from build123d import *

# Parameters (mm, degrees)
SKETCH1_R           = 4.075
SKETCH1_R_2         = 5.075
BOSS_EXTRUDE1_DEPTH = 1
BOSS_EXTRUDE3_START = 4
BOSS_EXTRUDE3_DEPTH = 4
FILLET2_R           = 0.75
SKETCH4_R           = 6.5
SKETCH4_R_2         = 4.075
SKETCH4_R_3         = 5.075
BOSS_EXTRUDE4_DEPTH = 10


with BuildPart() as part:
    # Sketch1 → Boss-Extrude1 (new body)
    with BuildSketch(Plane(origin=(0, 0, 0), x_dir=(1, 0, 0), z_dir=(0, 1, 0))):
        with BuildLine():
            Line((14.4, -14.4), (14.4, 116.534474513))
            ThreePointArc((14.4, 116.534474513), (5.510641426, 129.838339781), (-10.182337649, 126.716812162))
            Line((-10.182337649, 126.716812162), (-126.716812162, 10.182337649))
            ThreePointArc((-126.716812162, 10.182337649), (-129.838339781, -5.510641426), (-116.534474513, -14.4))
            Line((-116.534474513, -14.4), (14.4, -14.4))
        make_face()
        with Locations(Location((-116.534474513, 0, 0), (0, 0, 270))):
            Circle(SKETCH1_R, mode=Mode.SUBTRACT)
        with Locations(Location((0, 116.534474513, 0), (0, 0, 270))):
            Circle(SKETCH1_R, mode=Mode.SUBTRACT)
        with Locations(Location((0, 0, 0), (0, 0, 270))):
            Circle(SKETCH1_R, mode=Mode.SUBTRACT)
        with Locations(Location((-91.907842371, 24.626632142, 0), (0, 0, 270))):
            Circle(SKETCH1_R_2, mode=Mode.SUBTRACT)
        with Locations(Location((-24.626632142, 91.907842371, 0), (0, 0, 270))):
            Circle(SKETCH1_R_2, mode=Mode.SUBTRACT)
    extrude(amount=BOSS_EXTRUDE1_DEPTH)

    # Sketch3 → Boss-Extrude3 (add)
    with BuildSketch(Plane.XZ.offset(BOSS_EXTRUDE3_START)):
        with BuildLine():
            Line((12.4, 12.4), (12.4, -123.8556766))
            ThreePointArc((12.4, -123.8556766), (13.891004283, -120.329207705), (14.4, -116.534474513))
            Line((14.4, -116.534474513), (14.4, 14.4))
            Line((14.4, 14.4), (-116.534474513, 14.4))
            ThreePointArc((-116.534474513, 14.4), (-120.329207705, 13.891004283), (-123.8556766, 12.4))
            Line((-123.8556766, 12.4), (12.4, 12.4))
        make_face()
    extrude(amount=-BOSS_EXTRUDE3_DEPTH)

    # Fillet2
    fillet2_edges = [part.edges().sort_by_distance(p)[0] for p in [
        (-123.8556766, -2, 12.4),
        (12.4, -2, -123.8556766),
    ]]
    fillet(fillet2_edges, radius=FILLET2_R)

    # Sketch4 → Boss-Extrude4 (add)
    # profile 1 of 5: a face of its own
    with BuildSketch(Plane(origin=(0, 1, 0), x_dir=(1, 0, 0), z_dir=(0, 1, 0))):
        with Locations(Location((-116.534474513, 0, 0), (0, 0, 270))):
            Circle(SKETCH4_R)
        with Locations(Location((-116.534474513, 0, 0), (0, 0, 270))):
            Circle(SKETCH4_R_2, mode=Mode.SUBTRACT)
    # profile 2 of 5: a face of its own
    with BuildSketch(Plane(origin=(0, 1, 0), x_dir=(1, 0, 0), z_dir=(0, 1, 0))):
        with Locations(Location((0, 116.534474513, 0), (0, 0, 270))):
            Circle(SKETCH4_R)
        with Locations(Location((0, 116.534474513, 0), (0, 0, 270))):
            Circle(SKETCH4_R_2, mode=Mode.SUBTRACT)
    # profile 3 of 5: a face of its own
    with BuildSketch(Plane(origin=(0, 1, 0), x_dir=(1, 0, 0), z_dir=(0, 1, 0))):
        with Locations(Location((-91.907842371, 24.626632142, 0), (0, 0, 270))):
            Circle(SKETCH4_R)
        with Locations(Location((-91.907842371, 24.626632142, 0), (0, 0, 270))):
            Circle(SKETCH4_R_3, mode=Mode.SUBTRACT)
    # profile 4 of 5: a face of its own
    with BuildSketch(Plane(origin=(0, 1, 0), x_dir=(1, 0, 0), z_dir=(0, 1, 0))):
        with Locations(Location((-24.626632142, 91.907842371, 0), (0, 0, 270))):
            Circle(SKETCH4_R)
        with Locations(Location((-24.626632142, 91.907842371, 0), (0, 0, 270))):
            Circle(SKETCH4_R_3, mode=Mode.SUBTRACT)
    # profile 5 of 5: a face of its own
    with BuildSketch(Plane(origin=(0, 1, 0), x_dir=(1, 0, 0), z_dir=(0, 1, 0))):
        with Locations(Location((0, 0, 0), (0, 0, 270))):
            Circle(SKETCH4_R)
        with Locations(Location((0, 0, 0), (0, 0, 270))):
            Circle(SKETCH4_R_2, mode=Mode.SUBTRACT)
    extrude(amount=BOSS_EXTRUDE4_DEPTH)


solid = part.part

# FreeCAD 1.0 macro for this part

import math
import FreeCAD as App
import Part
import Sketcher

V = App.Vector


def edges_at(feature, points):
    """Names of the edges that pass closest to the given points."""
    edges = feature.Shape.Edges
    near = lambda p: min(range(len(edges)), key=lambda i: edges[i].distToShape(Part.Vertex(*p))[0])
    return sorted({f"Edge{near(p) + 1}" for p in points})

doc = App.newDocument("Part")
body = doc.addObject("PartDesign::Body", "Body")

# Sketch on XZ plane
sketch1 = body.newObject("Sketcher::SketchObject", "Sketch")
sketch1.AttachmentSupport = (doc.getObject("XZ_Plane"), [""])
sketch1.MapMode = "FlatFace"
sketch1.addGeometry(Part.LineSegment(V(14.4, 14.4, 0), V(14.4, -116.534475, 0)), False)
sketch1.addGeometry(Part.ArcOfCircle(Part.Circle(V(0, -116.534475, 0), V(0, 0, 1), 14.4), math.radians(-135), math.radians(0)), False)
sketch1.addGeometry(Part.LineSegment(V(-10.182338, -126.716812, 0), V(-126.716812, -10.182338, 0)), False)
sketch1.addGeometry(Part.ArcOfCircle(Part.Circle(V(-116.534475, 0, 0), V(0, 0, 1), 14.4), math.radians(90), math.radians(225)), False)
sketch1.addGeometry(Part.LineSegment(V(-116.534475, 14.4, 0), V(14.4, 14.4, 0)), False)
sketch1.addGeometry(Part.Circle(V(-116.534475, 0, 0), V(0, 0, 1), 4.075), False)
sketch1.addGeometry(Part.Circle(V(-91.907842, -24.626632, 0), V(0, 0, 1), 5.075), False)
sketch1.addGeometry(Part.Circle(V(0, 0, 0), V(0, 0, 1), 4.075), False)
sketch1.addGeometry(Part.Circle(V(-24.626632, -91.907842, 0), V(0, 0, 1), 5.075), False)
sketch1.addGeometry(Part.Circle(V(0, -116.534475, 0), V(0, 0, 1), 4.075), False)
sketch1.addConstraint(Sketcher.Constraint("Tangent", 0, 2, 1, 2))
sketch1.addConstraint(Sketcher.Constraint("Tangent", 1, 1, 2, 1))
sketch1.addConstraint(Sketcher.Constraint("Tangent", 2, 2, 3, 2))
sketch1.addConstraint(Sketcher.Constraint("Tangent", 3, 1, 4, 1))
sketch1.addConstraint(Sketcher.Constraint("Coincident", 4, 2, 0, 1))
sketch1.addConstraint(Sketcher.Constraint("Vertical", 0))
sketch1.addConstraint(Sketcher.Constraint("Horizontal", 4))
sketch1.addConstraint(Sketcher.Constraint("Coincident", 7, 3, -1, 1))
sketch1.addConstraint(Sketcher.Constraint("Coincident", 5, 3, 3, 3))
sketch1.addConstraint(Sketcher.Constraint("Coincident", 9, 3, 1, 3))
sketch1.addConstraint(Sketcher.Constraint("Equal", 1, 3))
sketch1.addConstraint(Sketcher.Constraint("Equal", 5, 7))
sketch1.addConstraint(Sketcher.Constraint("Equal", 6, 8))
sketch1.addConstraint(Sketcher.Constraint("Equal", 7, 9))
sketch1.addConstraint(Sketcher.Constraint("PointOnObject", 1, 3, -2))
sketch1.addConstraint(Sketcher.Constraint("PointOnObject", 3, 3, -1))
sketch1.addConstraint(Sketcher.Constraint("Equal", 4, 0))
sketch1.addConstraint(Sketcher.Constraint("Radius", 1, 14.4))
sketch1.addConstraint(Sketcher.Constraint("Diameter", 5, 8.15))
sketch1.addConstraint(Sketcher.Constraint("Diameter", 6, 10.15))
sketch1.addConstraint(Sketcher.Constraint("DistanceX", 4, 1, 4, 2, 130.934475))
sketch1.addConstraint(Sketcher.Constraint("DistanceX", 6, 3, 8, 3, 67.28121))
sketch1.addConstraint(Sketcher.Constraint("DistanceY", 8, 3, 6, 3, 67.28121))
sketch1.addConstraint(Sketcher.Constraint("DistanceY", 1, 1, 8, 3, 34.80897))
sketch1.addConstraint(Sketcher.Constraint("DistanceX", 2, 2, 6, 3, 34.80897))
pad1 = body.newObject("PartDesign::Pad", "Pad")
pad1.Profile = sketch1
pad1.Length = 1
pad1.Reversed = True

# Sketch on XZ plane
sketch2 = body.newObject("Sketcher::SketchObject", "Sketch001")
sketch2.AttachmentSupport = (doc.getObject("XZ_Plane"), [""])
sketch2.MapMode = "FlatFace"
sketch2.AttachmentOffset = App.Placement(V(0, 0, 4), App.Rotation())
sketch2.addGeometry(Part.LineSegment(V(12.4, 12.4, 0), V(12.4, -123.855677, 0)), False)
sketch2.addGeometry(Part.ArcOfCircle(Part.Circle(V(0, -116.534475, 0), V(0, 0, 1), 14.4), math.radians(-30.558432), math.radians(0)), False)
sketch2.addGeometry(Part.LineSegment(V(14.4, -116.534475, 0), V(14.4, 14.4, 0)), False)
sketch2.addGeometry(Part.LineSegment(V(14.4, 14.4, 0), V(-116.534475, 14.4, 0)), False)
sketch2.addGeometry(Part.ArcOfCircle(Part.Circle(V(-116.534475, 0, 0), V(0, 0, 1), 14.4), math.radians(90), math.radians(120.558432)), False)
sketch2.addGeometry(Part.LineSegment(V(-123.855677, 12.4, 0), V(12.4, 12.4, 0)), False)
sketch2.addConstraint(Sketcher.Constraint("Coincident", 0, 2, 1, 1))
sketch2.addConstraint(Sketcher.Constraint("Tangent", 1, 2, 2, 1))
sketch2.addConstraint(Sketcher.Constraint("Coincident", 2, 2, 3, 1))
sketch2.addConstraint(Sketcher.Constraint("Tangent", 3, 2, 4, 1))
sketch2.addConstraint(Sketcher.Constraint("Coincident", 4, 2, 5, 1))
sketch2.addConstraint(Sketcher.Constraint("Coincident", 5, 2, 0, 1))
sketch2.addConstraint(Sketcher.Constraint("Vertical", 0))
sketch2.addConstraint(Sketcher.Constraint("Vertical", 2))
sketch2.addConstraint(Sketcher.Constraint("Horizontal", 3))
sketch2.addConstraint(Sketcher.Constraint("Horizontal", 5))
sketch2.addConstraint(Sketcher.Constraint("Equal", 1, 4))
sketch2.addConstraint(Sketcher.Constraint("PointOnObject", 1, 3, -2))
sketch2.addConstraint(Sketcher.Constraint("PointOnObject", 4, 3, -1))
sketch2.addConstraint(Sketcher.Constraint("Equal", 5, 0))
sketch2.addConstraint(Sketcher.Constraint("Equal", 3, 2))
sketch2.addConstraint(Sketcher.Constraint("Radius", 1, 14.4))
sketch2.addConstraint(Sketcher.Constraint("DistanceX", 0, 2, 1, 2, 2.0))
sketch2.addConstraint(Sketcher.Constraint("DistanceX", 3, 2, 3, 1, 130.934475))
pad2 = body.newObject("PartDesign::Pad", "Pad001")
pad2.Profile = sketch2
pad2.Length = 4
pad2.Reversed = True
doc.recompute()

fillet = body.newObject("PartDesign::Fillet", "Fillet")
fillet.Base = (pad2, edges_at(pad2, [(-123.856, -2, 12.4), (12.4, -2, -123.856)]))
fillet.Radius = 0.75

# Sketch on XZ plane
sketch3 = body.newObject("Sketcher::SketchObject", "Sketch002")
sketch3.AttachmentSupport = (doc.getObject("XZ_Plane"), [""])
sketch3.MapMode = "FlatFace"
sketch3.AttachmentOffset = App.Placement(V(0, 0, -1), App.Rotation())
sketch3.addGeometry(Part.Circle(V(-116.534475, 0, 0), V(0, 0, 1), 6.5), False)
sketch3.addGeometry(Part.Circle(V(-116.534475, 0, 0), V(0, 0, 1), 4.075), False)
sketch3.addGeometry(Part.Circle(V(0, -116.534475, 0), V(0, 0, 1), 6.5), False)
sketch3.addGeometry(Part.Circle(V(0, -116.534475, 0), V(0, 0, 1), 4.075), False)
sketch3.addGeometry(Part.Circle(V(-91.907842, -24.626632, 0), V(0, 0, 1), 6.5), False)
sketch3.addGeometry(Part.Circle(V(-91.907842, -24.626632, 0), V(0, 0, 1), 5.075), False)
sketch3.addGeometry(Part.Circle(V(-24.626632, -91.907842, 0), V(0, 0, 1), 6.5), False)
sketch3.addGeometry(Part.Circle(V(-24.626632, -91.907842, 0), V(0, 0, 1), 5.075), False)
sketch3.addGeometry(Part.Circle(V(0, 0, 0), V(0, 0, 1), 6.5), False)
sketch3.addGeometry(Part.Circle(V(0, 0, 0), V(0, 0, 1), 4.075), False)
sketch3.addConstraint(Sketcher.Constraint("Coincident", 8, 3, -1, 1))
sketch3.addConstraint(Sketcher.Constraint("Coincident", 9, 3, -1, 1))
sketch3.addConstraint(Sketcher.Constraint("Coincident", 1, 3, 0, 3))
sketch3.addConstraint(Sketcher.Constraint("Coincident", 3, 3, 2, 3))
sketch3.addConstraint(Sketcher.Constraint("Coincident", 5, 3, 4, 3))
sketch3.addConstraint(Sketcher.Constraint("Coincident", 7, 3, 6, 3))
sketch3.addConstraint(Sketcher.Constraint("Equal", 0, 2))
sketch3.addConstraint(Sketcher.Constraint("Equal", 1, 3))
sketch3.addConstraint(Sketcher.Constraint("Equal", 2, 4))
sketch3.addConstraint(Sketcher.Constraint("Equal", 4, 6))
sketch3.addConstraint(Sketcher.Constraint("Equal", 5, 7))
sketch3.addConstraint(Sketcher.Constraint("Equal", 6, 8))
sketch3.addConstraint(Sketcher.Constraint("Equal", 3, 9))
sketch3.addConstraint(Sketcher.Constraint("PointOnObject", 0, 3, -1))
sketch3.addConstraint(Sketcher.Constraint("PointOnObject", 2, 3, -2))
sketch3.addConstraint(Sketcher.Constraint("Diameter", 0, 13.0))
sketch3.addConstraint(Sketcher.Constraint("Diameter", 1, 8.15))
sketch3.addConstraint(Sketcher.Constraint("Diameter", 5, 10.15))
sketch3.addConstraint(Sketcher.Constraint("DistanceX", 4, 3, 6, 3, 67.28121))
sketch3.addConstraint(Sketcher.Constraint("DistanceY", 6, 3, 4, 3, 67.28121))
sketch3.addConstraint(Sketcher.Constraint("DistanceX", 0, 3, -1, 1, 116.534475))
sketch3.addConstraint(Sketcher.Constraint("DistanceY", 2, 3, -1, 1, 116.534475))
sketch3.addConstraint(Sketcher.Constraint("DistanceX", 4, 3, -1, 1, 91.907842))
sketch3.addConstraint(Sketcher.Constraint("DistanceY", 4, 3, -1, 1, 24.626632))
pad3 = body.newObject("PartDesign::Pad", "Pad002")
pad3.Profile = sketch3
pad3.Length = 10
pad3.Reversed = True

doc.recompute()
